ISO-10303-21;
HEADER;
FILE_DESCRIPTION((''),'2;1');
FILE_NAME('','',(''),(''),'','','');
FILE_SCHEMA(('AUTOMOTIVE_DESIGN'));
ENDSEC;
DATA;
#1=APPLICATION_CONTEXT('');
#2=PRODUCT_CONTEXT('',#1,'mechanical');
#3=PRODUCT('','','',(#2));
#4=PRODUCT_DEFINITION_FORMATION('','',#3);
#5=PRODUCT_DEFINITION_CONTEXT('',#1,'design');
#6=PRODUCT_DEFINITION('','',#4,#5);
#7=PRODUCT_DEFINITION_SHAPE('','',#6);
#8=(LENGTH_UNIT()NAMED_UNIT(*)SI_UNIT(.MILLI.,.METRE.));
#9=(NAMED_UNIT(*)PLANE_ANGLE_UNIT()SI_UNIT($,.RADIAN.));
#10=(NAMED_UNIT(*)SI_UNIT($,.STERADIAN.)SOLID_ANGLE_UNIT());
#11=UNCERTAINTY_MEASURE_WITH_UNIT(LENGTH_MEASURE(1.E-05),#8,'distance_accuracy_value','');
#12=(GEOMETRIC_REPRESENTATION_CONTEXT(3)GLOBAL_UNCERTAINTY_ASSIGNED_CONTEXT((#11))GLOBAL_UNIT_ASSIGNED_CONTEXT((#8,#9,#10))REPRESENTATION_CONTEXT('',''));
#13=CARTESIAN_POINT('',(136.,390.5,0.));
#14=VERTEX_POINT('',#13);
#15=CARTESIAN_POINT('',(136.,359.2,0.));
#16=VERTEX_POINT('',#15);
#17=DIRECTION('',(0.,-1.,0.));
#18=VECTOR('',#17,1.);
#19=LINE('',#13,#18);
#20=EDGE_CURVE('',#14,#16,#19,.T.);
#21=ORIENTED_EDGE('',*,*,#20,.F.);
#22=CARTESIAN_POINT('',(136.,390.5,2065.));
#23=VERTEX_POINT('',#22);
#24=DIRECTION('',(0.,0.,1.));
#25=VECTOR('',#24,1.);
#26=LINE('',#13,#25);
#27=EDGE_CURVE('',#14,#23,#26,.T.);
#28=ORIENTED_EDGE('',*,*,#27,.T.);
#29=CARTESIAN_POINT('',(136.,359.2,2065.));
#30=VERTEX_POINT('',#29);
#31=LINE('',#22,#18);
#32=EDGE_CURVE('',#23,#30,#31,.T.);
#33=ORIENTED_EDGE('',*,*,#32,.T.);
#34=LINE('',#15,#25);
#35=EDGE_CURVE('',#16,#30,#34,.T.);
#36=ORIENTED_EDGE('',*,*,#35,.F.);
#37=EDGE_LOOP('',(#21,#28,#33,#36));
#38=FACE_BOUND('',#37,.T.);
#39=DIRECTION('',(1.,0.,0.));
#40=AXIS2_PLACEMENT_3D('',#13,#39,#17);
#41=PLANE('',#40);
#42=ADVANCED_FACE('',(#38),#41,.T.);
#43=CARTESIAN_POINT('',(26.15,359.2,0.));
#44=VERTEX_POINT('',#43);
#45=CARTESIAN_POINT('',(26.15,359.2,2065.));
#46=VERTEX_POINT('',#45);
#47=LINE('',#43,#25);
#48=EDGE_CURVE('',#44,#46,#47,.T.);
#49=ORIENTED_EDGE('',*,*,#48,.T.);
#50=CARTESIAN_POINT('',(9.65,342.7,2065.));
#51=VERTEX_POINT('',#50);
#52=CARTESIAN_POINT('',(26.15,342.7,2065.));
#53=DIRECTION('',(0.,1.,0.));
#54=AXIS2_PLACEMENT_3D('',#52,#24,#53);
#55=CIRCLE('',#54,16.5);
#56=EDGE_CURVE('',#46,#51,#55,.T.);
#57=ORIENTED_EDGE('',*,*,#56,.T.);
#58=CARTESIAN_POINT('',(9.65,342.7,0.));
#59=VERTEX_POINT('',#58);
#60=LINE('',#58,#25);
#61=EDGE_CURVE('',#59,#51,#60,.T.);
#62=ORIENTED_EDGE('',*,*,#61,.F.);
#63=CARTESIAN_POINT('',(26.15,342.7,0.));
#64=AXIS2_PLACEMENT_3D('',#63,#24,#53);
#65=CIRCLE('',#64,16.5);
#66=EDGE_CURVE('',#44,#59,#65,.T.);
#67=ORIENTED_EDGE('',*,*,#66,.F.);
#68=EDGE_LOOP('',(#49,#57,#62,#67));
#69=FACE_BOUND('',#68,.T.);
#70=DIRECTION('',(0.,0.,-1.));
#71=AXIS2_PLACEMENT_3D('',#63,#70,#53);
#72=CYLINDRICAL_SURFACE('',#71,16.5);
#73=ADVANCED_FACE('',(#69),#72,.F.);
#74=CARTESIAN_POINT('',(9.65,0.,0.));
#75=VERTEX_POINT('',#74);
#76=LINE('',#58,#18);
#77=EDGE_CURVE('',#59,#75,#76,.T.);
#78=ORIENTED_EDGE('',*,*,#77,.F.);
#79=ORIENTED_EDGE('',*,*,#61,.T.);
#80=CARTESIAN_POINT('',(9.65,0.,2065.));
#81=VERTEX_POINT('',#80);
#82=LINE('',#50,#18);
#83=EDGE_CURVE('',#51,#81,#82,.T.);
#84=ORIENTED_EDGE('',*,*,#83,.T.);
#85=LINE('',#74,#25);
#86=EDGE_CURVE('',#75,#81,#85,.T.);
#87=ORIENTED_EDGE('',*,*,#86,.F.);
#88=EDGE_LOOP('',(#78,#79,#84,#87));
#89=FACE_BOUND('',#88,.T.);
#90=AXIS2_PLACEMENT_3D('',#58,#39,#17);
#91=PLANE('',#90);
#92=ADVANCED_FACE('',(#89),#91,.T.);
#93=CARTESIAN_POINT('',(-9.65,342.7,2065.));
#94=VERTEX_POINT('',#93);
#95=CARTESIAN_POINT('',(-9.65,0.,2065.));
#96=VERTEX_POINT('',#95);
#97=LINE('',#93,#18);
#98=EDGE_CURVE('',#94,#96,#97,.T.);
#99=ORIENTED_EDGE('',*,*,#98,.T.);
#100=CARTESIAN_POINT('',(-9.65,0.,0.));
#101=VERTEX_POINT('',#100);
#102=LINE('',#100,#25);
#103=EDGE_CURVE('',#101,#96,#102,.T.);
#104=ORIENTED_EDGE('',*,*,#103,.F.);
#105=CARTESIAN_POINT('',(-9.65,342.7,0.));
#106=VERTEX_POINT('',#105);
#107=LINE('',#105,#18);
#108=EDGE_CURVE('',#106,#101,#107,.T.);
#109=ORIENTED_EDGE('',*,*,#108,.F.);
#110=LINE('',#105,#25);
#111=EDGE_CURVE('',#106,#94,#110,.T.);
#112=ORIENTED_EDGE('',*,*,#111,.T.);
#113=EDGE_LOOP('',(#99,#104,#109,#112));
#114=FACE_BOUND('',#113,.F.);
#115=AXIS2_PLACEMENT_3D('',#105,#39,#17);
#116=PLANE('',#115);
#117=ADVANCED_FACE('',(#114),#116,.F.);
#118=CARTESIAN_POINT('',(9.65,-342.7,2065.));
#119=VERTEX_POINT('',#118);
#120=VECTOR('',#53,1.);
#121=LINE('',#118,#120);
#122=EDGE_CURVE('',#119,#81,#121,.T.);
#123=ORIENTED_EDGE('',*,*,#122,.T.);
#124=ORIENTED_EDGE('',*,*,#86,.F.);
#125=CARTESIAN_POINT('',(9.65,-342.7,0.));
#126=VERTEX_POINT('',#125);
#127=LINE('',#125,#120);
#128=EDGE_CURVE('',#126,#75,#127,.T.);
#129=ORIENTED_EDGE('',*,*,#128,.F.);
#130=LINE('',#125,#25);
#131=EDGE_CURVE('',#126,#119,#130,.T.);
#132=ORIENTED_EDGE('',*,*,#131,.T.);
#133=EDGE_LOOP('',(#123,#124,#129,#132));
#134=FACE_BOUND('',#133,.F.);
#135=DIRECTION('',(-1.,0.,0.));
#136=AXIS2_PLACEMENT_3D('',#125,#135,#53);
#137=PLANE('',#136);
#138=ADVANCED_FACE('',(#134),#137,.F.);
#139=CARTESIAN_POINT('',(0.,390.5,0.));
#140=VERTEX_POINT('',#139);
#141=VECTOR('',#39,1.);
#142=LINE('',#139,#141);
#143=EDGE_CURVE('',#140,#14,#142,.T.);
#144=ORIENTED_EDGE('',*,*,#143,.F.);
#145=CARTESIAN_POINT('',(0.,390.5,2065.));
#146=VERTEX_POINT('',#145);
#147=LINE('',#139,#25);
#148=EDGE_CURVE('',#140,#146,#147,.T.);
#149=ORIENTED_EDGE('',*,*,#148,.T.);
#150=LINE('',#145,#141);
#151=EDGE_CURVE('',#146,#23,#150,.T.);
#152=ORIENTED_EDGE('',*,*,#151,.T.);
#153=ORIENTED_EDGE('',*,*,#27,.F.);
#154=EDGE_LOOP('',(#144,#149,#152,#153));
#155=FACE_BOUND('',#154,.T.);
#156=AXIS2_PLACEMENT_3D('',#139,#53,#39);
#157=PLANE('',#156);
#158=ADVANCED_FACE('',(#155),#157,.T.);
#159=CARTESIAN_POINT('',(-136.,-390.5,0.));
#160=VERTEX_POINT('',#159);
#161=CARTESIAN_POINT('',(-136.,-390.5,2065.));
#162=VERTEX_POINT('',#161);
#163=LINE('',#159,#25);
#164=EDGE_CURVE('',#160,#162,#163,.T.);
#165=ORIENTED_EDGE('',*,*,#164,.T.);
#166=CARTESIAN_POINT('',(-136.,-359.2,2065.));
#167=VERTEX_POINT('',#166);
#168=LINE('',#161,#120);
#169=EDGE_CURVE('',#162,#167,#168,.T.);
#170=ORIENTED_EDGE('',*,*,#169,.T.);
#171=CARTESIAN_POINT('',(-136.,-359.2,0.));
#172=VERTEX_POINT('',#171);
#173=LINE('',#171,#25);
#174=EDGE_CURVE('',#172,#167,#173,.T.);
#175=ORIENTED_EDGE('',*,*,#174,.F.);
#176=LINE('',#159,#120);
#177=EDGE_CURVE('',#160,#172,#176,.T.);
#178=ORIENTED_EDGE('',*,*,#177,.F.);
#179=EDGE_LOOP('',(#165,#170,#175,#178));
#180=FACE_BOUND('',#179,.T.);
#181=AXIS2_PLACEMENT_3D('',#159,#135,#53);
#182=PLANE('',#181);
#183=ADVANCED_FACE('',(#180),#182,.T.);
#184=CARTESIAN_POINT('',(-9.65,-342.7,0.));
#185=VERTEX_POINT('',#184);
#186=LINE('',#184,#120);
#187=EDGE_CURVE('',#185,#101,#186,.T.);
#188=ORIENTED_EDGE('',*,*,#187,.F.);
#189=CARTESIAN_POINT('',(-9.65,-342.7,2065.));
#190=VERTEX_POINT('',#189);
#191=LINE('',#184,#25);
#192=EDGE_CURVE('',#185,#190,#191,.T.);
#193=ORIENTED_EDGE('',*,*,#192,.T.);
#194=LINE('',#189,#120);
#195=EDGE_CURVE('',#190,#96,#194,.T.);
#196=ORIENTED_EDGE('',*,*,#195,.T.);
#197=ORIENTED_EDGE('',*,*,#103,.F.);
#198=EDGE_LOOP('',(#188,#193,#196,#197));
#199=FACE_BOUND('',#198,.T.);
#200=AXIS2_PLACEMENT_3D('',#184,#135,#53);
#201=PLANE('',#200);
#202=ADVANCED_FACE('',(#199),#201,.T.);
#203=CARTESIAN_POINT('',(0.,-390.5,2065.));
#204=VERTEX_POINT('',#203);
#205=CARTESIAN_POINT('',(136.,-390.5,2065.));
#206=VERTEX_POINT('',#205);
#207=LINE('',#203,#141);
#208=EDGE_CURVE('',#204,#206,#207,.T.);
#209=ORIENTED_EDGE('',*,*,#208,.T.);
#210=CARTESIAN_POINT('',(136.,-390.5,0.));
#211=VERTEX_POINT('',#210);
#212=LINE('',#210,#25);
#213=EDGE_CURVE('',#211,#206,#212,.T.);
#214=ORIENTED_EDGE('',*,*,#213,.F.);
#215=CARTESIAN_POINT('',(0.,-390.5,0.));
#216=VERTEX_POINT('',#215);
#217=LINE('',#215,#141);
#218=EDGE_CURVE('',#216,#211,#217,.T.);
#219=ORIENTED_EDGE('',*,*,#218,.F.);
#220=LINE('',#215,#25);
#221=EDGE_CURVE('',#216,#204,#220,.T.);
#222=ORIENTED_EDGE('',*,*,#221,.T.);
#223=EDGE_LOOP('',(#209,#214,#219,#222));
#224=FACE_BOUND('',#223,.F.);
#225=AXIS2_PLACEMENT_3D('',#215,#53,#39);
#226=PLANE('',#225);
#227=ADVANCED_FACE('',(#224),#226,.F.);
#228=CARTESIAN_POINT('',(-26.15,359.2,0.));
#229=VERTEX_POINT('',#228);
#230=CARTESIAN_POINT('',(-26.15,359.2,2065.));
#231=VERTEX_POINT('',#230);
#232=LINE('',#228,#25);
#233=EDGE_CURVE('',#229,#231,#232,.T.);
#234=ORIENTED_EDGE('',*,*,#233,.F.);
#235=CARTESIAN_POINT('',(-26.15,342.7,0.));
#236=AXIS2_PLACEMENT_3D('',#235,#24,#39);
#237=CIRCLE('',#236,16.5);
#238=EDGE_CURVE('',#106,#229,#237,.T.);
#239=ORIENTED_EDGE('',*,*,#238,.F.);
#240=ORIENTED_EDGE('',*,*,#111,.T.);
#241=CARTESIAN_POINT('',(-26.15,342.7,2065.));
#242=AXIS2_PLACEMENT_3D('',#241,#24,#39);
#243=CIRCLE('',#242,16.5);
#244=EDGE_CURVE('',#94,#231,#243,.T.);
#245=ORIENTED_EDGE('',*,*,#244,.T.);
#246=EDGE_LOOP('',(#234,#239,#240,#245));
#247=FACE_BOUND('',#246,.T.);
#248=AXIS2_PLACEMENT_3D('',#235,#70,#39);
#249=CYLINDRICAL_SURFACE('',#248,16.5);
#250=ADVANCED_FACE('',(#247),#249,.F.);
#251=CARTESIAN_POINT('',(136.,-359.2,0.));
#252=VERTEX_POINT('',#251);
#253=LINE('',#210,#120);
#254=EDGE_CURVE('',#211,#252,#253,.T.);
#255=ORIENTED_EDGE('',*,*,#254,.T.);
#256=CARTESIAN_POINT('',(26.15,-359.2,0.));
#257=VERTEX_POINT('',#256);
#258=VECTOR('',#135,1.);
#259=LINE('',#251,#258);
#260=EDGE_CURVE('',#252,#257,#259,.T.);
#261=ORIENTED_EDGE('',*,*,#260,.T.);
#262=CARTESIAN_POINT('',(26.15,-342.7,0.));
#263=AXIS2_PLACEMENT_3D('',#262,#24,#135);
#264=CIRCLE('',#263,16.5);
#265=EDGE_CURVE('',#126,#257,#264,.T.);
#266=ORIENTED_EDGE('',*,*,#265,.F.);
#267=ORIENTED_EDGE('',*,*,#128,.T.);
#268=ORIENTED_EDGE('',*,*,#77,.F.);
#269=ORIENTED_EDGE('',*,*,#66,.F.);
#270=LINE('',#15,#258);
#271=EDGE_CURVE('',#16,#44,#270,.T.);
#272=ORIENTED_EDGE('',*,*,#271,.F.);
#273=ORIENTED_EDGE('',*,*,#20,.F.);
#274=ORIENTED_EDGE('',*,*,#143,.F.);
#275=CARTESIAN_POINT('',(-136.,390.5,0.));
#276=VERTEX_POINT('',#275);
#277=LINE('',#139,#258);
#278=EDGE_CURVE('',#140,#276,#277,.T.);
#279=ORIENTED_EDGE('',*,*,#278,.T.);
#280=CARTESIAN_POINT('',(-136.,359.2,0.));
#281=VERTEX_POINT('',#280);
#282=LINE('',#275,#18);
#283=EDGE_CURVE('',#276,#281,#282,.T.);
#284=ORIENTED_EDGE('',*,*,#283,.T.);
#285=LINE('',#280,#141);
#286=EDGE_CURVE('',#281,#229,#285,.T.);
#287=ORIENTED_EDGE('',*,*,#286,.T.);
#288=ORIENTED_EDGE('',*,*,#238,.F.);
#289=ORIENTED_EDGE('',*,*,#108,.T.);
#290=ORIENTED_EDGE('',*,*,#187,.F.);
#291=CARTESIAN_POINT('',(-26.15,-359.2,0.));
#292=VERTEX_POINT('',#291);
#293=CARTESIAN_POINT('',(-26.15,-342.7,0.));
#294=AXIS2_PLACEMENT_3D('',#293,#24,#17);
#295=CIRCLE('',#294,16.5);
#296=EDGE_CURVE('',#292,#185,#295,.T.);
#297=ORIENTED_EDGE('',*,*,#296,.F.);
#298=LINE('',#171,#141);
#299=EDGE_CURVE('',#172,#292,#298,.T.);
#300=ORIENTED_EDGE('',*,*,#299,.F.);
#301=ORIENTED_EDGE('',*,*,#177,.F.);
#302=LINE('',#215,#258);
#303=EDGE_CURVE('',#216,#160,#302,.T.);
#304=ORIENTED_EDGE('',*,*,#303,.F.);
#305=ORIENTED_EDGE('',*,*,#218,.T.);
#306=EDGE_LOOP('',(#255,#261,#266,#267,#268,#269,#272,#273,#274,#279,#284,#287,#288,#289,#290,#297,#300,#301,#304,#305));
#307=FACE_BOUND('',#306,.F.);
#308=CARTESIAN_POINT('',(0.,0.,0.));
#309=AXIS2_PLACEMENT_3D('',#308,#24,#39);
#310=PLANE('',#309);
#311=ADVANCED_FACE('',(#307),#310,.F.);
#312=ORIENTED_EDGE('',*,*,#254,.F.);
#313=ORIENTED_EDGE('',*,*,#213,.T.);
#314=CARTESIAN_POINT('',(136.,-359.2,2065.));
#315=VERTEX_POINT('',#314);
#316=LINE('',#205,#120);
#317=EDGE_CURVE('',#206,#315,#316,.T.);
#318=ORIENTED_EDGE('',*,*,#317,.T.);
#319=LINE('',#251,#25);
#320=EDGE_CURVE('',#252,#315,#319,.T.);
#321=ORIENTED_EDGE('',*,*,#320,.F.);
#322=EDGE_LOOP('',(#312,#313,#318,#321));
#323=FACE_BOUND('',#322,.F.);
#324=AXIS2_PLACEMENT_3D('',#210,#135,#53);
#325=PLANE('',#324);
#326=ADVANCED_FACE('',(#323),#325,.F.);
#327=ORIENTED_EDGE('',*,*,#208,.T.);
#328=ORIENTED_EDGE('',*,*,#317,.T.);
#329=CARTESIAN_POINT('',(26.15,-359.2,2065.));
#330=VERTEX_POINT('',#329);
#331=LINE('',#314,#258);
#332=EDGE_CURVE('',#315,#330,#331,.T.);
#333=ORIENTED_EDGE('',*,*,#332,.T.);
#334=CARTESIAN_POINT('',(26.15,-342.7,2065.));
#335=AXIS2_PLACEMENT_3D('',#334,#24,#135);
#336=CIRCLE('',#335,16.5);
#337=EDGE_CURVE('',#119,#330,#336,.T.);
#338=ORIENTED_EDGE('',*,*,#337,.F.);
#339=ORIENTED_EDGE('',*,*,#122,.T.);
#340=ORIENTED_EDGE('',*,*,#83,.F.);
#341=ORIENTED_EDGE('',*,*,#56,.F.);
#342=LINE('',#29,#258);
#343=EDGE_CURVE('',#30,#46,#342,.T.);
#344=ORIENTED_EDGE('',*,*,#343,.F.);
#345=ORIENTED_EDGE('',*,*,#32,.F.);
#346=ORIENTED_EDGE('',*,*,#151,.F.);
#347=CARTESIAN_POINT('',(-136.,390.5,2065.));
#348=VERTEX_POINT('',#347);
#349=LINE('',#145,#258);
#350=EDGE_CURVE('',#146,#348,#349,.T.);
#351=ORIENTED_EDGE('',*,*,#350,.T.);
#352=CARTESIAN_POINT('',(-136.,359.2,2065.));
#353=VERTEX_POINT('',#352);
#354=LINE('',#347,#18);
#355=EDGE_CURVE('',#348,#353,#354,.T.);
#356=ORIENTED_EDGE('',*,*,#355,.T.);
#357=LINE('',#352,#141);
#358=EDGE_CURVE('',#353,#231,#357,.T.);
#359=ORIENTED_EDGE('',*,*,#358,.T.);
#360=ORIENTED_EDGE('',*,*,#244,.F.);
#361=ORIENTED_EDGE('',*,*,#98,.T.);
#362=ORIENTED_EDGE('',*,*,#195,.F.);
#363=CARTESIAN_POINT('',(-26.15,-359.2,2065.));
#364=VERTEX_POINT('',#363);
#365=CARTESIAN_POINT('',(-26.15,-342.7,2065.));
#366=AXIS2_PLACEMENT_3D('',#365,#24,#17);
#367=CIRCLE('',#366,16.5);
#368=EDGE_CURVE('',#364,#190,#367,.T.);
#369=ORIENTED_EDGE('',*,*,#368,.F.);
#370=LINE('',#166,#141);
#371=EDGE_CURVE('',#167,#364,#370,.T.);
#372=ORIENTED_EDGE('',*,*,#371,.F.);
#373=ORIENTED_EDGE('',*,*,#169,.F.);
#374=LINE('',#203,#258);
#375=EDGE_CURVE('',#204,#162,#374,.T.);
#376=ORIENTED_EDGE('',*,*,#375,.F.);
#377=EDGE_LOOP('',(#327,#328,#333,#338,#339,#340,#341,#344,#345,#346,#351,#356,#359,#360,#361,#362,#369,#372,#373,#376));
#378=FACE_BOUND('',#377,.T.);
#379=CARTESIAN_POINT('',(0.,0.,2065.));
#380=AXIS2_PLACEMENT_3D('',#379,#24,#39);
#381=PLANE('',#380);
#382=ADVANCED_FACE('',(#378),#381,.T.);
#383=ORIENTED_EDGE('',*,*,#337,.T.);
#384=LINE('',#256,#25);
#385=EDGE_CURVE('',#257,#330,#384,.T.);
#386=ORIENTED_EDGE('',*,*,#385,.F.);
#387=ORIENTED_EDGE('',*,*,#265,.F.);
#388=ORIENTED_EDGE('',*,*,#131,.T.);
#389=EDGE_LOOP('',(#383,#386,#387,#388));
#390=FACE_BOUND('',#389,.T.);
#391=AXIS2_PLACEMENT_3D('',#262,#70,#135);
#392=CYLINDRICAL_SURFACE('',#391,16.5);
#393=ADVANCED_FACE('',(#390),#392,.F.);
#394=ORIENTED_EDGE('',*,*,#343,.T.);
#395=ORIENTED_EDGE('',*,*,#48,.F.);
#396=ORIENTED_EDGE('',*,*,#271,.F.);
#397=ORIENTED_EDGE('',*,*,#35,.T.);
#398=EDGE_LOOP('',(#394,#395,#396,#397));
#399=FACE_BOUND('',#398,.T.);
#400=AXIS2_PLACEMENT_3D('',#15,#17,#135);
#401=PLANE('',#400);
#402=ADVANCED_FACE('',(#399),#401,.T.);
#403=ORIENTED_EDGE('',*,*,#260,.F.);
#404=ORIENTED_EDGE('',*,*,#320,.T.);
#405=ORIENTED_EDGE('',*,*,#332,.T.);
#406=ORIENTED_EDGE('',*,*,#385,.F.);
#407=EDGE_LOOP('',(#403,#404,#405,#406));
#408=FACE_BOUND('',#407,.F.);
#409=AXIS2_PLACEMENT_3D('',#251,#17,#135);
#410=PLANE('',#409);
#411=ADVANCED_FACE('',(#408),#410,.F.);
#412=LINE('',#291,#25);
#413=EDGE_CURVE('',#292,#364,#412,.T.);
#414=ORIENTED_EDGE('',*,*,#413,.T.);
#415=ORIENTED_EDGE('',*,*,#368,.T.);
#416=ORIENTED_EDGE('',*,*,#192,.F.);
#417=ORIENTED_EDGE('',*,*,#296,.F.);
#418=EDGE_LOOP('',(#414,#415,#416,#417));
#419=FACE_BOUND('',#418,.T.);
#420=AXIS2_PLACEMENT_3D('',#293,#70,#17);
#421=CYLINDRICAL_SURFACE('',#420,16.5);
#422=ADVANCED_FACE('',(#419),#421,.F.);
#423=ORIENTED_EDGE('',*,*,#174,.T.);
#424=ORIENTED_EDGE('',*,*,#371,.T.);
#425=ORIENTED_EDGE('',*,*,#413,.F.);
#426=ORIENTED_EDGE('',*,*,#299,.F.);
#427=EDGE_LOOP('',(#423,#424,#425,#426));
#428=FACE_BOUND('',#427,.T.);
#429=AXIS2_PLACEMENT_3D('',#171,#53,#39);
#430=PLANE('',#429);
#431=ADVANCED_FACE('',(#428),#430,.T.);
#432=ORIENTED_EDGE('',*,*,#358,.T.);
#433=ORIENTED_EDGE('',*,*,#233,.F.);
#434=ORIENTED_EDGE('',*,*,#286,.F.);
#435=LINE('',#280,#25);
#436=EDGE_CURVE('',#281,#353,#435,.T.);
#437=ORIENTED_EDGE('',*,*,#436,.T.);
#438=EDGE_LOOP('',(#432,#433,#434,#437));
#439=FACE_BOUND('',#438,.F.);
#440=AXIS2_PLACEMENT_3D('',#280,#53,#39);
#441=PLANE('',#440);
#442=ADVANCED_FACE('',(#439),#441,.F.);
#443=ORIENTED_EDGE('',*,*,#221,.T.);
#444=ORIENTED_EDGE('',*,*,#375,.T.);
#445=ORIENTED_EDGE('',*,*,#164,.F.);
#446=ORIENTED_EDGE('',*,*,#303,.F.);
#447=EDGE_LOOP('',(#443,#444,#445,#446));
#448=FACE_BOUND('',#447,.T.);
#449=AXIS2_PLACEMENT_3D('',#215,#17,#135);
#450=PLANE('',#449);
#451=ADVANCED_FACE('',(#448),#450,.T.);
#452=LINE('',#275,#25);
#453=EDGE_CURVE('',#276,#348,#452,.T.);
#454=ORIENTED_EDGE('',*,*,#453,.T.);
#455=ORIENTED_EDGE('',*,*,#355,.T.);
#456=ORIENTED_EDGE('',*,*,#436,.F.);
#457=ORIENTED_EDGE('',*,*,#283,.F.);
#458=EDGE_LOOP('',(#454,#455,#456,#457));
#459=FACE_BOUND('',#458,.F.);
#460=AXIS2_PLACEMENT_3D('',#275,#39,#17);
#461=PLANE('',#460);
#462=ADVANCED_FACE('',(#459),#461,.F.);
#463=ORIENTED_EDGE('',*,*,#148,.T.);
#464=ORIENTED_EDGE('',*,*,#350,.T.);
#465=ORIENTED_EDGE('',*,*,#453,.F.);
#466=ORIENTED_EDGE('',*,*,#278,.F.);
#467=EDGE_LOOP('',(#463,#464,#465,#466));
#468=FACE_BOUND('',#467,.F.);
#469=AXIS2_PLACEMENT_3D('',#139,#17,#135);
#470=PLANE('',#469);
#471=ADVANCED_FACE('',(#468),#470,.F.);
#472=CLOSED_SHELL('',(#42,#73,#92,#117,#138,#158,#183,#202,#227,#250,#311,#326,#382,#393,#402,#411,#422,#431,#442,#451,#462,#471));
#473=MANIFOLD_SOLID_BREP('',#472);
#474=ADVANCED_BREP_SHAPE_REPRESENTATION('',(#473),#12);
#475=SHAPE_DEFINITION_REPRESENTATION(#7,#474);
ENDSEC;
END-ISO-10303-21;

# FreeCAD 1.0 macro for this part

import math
import FreeCAD as App
import Part
import Sketcher

doc = App.newDocument("Part")
body = doc.addObject("PartDesign::Body", "Body")

sketch1 = body.newObject("Sketcher::SketchObject", "Sketch")
sketch1.AttachmentSupport = (doc.getObject("XY_Plane"), [""])
sketch1.MapMode = "FlatFace"
sketch1.addGeometry(Part.LineSegment(App.Vector(-136, -359, 0), App.Vector(-136, -390, 0)), False)
sketch1.addGeometry(Part.LineSegment(App.Vector(-136, -390, 0), App.Vector(136, -390, 0)), False)
sketch1.addGeometry(Part.LineSegment(App.Vector(136, -390, 0), App.Vector(136, -359, 0)), False)
sketch1.addGeometry(Part.LineSegment(App.Vector(136, -359, 0), App.Vector(26, -359, 0)), False)
sketch1.addGeometry(Part.ArcOfCircle(Part.Circle(App.Vector(26, -343, 0), App.Vector(0, 0, 1), 16), math.radians(180), math.radians(270)), False)
sketch1.addGeometry(Part.LineSegment(App.Vector(10, -343, 0), App.Vector(10, 343, 0)), False)
sketch1.addGeometry(Part.ArcOfCircle(Part.Circle(App.Vector(26, 343, 0), App.Vector(0, 0, 1), 16), math.radians(90), math.radians(180)), False)
sketch1.addGeometry(Part.LineSegment(App.Vector(26, 359, 0), App.Vector(136, 359, 0)), False)
sketch1.addGeometry(Part.LineSegment(App.Vector(136, 359, 0), App.Vector(136, 390, 0)), False)
sketch1.addGeometry(Part.LineSegment(App.Vector(136, 390, 0), App.Vector(-136, 390, 0)), False)
sketch1.addGeometry(Part.LineSegment(App.Vector(-136, 390, 0), App.Vector(-136, 359, 0)), False)
sketch1.addGeometry(Part.LineSegment(App.Vector(-136, 359, 0), App.Vector(-26, 359, 0)), False)
sketch1.addGeometry(Part.ArcOfCircle(Part.Circle(App.Vector(-26, 343, 0), App.Vector(0, 0, 1), 16), math.radians(0), math.radians(90)), False)
sketch1.addGeometry(Part.LineSegment(App.Vector(-10, 343, 0), App.Vector(-10, -343, 0)), False)
sketch1.addGeometry(Part.ArcOfCircle(Part.Circle(App.Vector(-26, -343, 0), App.Vector(0, 0, 1), 16), math.radians(-90), math.radians(0)), False)
sketch1.addGeometry(Part.LineSegment(App.Vector(-26, -359, 0), App.Vector(-136, -359, 0)), False)
sketch1.addConstraint(Sketcher.Constraint("Coincident", 0, 2, 1, 1))
sketch1.addConstraint(Sketcher.Constraint("Coincident", 1, 2, 2, 1))
sketch1.addConstraint(Sketcher.Constraint("Coincident", 2, 2, 3, 1))
sketch1.addConstraint(Sketcher.Constraint("Tangent", 3, 2, 4, 2))
sketch1.addConstraint(Sketcher.Constraint("Tangent", 4, 1, 5, 1))
sketch1.addConstraint(Sketcher.Constraint("Tangent", 5, 2, 6, 2))
sketch1.addConstraint(Sketcher.Constraint("Tangent", 6, 1, 7, 1))
sketch1.addConstraint(Sketcher.Constraint("Coincident", 7, 2, 8, 1))
sketch1.addConstraint(Sketcher.Constraint("Coincident", 8, 2, 9, 1))
sketch1.addConstraint(Sketcher.Constraint("Coincident", 9, 2, 10, 1))
sketch1.addConstraint(Sketcher.Constraint("Coincident", 10, 2, 11, 1))
sketch1.addConstraint(Sketcher.Constraint("Tangent", 11, 2, 12, 2))
sketch1.addConstraint(Sketcher.Constraint("Tangent", 12, 1, 13, 1))
sketch1.addConstraint(Sketcher.Constraint("Tangent", 13, 2, 14, 2))
sketch1.addConstraint(Sketcher.Constraint("Tangent", 14, 1, 15, 1))
sketch1.addConstraint(Sketcher.Constraint("Coincident", 15, 2, 0, 1))
sketch1.addConstraint(Sketcher.Constraint("Vertical", 0))
sketch1.addConstraint(Sketcher.Constraint("Horizontal", 1))
sketch1.addConstraint(Sketcher.Constraint("Vertical", 2))
sketch1.addConstraint(Sketcher.Constraint("Horizontal", 3))
sketch1.addConstraint(Sketcher.Constraint("Vertical", 5))
sketch1.addConstraint(Sketcher.Constraint("Horizontal", 7))
sketch1.addConstraint(Sketcher.Constraint("Vertical", 8))
sketch1.addConstraint(Sketcher.Constraint("Horizontal", 9))
sketch1.addConstraint(Sketcher.Constraint("Vertical", 10))
sketch1.addConstraint(Sketcher.Constraint("Horizontal", 11))
sketch1.addConstraint(Sketcher.Constraint("Vertical", 13))
sketch1.addConstraint(Sketcher.Constraint("Horizontal", 15))
sketch1.addConstraint(Sketcher.Constraint("Equal", 4, 6))
sketch1.addConstraint(Sketcher.Constraint("Equal", 6, 12))
sketch1.addConstraint(Sketcher.Constraint("Equal", 12, 14))
sketch1.addConstraint(Sketcher.Constraint("Symmetric", 4, 3, 12, 3, -1, 1))
sketch1.addConstraint(Sketcher.Constraint("Symmetric", 0, 2, 8, 2, -1, 1))
sketch1.addConstraint(Sketcher.Constraint("Symmetric", 7, 2, 10, 2, -2))
sketch1.addConstraint(Sketcher.Constraint("Symmetric", 2, 2, 15, 2, -2))
sketch1.addConstraint(Sketcher.Constraint("Radius", 4, 16.5))
sketch1.addConstraint(Sketcher.Constraint("DistanceY", 0, 2, 0, 1, 31.3))
sketch1.addConstraint(Sketcher.Constraint("DistanceX", 0, 2, -1, 1, 136.0))
sketch1.addConstraint(Sketcher.Constraint("DistanceY", 0, 2, -1, 1, 390.5))
sketch1.addConstraint(Sketcher.Constraint("DistanceX", -1, 1, 4, 1, 9.65))
pad1 = body.newObject("PartDesign::Pad", "Pad")
pad1.Profile = sketch1
pad1.Length = 2065

doc.recompute()
